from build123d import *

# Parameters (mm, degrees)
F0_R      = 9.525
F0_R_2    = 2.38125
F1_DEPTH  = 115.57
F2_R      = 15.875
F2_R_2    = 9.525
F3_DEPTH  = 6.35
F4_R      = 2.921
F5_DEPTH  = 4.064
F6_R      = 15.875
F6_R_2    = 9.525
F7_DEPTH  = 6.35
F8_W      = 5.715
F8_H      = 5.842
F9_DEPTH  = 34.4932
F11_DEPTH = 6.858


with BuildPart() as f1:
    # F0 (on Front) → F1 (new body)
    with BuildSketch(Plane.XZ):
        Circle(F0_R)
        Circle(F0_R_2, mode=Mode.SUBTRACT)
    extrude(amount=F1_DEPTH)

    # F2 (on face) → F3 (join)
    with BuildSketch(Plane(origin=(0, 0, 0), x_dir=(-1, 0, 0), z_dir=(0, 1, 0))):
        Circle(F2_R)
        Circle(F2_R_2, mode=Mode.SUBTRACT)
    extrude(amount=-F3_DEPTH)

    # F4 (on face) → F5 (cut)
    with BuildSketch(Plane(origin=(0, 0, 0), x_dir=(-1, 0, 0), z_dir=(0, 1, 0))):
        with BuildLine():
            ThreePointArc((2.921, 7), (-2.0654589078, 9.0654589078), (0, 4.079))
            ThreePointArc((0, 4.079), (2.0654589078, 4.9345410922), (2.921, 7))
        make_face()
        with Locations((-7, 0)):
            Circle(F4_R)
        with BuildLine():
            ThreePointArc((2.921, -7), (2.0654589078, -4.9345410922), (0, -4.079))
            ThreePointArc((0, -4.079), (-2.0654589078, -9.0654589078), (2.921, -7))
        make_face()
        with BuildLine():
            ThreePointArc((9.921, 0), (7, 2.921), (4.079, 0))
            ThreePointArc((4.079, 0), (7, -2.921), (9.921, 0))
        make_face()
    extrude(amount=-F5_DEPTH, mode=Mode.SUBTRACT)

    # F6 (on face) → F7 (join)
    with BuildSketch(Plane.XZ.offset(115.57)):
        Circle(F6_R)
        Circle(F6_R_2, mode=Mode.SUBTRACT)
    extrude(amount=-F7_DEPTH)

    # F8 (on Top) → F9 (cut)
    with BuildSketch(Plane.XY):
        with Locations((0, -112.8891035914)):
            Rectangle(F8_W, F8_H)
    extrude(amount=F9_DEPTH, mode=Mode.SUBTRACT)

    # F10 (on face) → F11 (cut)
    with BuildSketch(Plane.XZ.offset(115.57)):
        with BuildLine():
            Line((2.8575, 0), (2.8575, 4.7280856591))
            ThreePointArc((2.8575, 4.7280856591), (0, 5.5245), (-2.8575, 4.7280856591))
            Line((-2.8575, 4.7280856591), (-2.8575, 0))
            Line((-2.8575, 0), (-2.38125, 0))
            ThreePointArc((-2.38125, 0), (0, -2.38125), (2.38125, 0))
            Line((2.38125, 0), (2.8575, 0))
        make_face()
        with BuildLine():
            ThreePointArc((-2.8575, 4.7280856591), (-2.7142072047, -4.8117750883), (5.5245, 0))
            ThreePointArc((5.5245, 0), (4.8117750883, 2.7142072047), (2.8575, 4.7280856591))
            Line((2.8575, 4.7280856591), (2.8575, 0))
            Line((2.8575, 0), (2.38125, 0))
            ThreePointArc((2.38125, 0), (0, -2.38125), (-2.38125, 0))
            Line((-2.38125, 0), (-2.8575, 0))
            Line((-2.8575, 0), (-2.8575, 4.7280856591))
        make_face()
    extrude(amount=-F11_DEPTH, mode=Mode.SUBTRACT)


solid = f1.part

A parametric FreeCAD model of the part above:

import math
import FreeCAD as App
import Part
import Sketcher
Q = App.Units.Quantity

doc = App.newDocument("Part")
body = doc.addObject("PartDesign::Body", "Body")

# Sketch on XZ plane
sketch1 = doc.addObject("Sketcher::SketchObject", "Sketch")
body.addObject(sketch1)
sketch1.AttachmentSupport = (doc.XZ_Plane, [""])
sketch1.MapMode = "FlatFace"
sketch1.addGeometry([
    Part.Circle(App.Vector(0, 0, 0), App.Vector(0, 0, 1), 9.5),
    Part.Circle(App.Vector(0, 0, 0), App.Vector(0, 0, 1), 2.4),
], False)
sketch1.addConstraint([
    Sketcher.Constraint("Coincident", 0, 3, -1, 1),
    Sketcher.Constraint("Coincident", 1, 3, -1, 1),
    Sketcher.Constraint("Diameter", 0, Q("0.75 in")),
    Sketcher.Constraint("Diameter", 1, Q("0.1875 in")),
])
pad1 = doc.addObject("PartDesign::Pad", "Pad")
body.addObject(pad1)
pad1.Profile = sketch1
pad1.Length = Q("4.55 in")

# Sketch on XZ plane
sketch2 = doc.addObject("Sketcher::SketchObject", "Sketch001")
body.addObject(sketch2)
sketch2.AttachmentSupport = (doc.XZ_Plane, [""])
sketch2.MapMode = "FlatFace"
sketch2.addGeometry([
    Part.Circle(App.Vector(0, 0, 0), App.Vector(0, 0, 1), 16),
    Part.Circle(App.Vector(0, 0, 0), App.Vector(0, 0, 1), 10),
], False)
sketch2.addConstraint([
    Sketcher.Constraint("Coincident", 0, 3, -1, 1),
    Sketcher.Constraint("Coincident", 1, 3, -1, 1),
    Sketcher.Constraint("Diameter", 0, Q("1.25 in")),
    Sketcher.Constraint("Diameter", 1, Q("0.75 in")),
])
pad2 = doc.addObject("PartDesign::Pad", "Pad001")
body.addObject(pad2)
pad2.Profile = sketch2
pad2.Length = Q("0.25 in")

# Sketch on XZ plane
sketch3 = doc.addObject("Sketcher::SketchObject", "Sketch002")
body.addObject(sketch3)
sketch3.AttachmentSupport = (doc.XZ_Plane, [""])
sketch3.MapMode = "FlatFace"
sketch3.addGeometry([
    Part.ArcOfCircle(Part.Circle(App.Vector(0, 7, 0), App.Vector(0, 0, 1), 2.9), math.radians(-90), math.radians(180)),  # 0
    Part.ArcOfCircle(Part.Circle(App.Vector(0, 7, 0), App.Vector(0, 0, 1), 2.9), math.radians(180), math.radians(270)),  # 1
    Part.Circle(App.Vector(7, 0, 0), App.Vector(0, 0, 1), 2.9),  # 2
    Part.ArcOfCircle(Part.Circle(App.Vector(0, -7, 0), App.Vector(0, 0, 1), 2.9), math.radians(90), math.radians(180)),  # 3
    Part.ArcOfCircle(Part.Circle(App.Vector(0, -7, 0), App.Vector(0, 0, 1), 2.9), math.radians(180), math.radians(450)),  # 4
    Part.Circle(App.Vector(-7, 0, 0), App.Vector(0, 0, 1), 2.9),  # 5
], False)
sketch3.addConstraint([
    Sketcher.Constraint("Tangent", 0, 1, 1, 2),
    Sketcher.Constraint("Coincident", 1, 1, 0, 2),
    Sketcher.Constraint("Tangent", 3, 1, 4, 2),
    Sketcher.Constraint("Coincident", 4, 1, 3, 2),
    Sketcher.Constraint("Equal", 1, 2),
    Sketcher.Constraint("Equal", 2, 3),
    Sketcher.Constraint("Equal", 4, 5),
    Sketcher.Constraint("Symmetric", 0, 3, 3, 3, -1, 1),
    Sketcher.Constraint("Symmetric", 2, 3, 5, 3, -1, 1),
    Sketcher.Constraint("Symmetric", 1, 1, 4, 1, -1),
    Sketcher.Constraint("PointOnObject", 2, 3, -1),
    Sketcher.Constraint("PointOnObject", 0, 1, -2),
    Sketcher.Constraint("PointOnObject", 3, 1, -2),
    Sketcher.Constraint("Horizontal", 0, 3, 1, 1),
    Sketcher.Constraint("Diameter", 2, Q("0.23 in")),
    Sketcher.Constraint("DistanceY", -1, 1, 0, 3, 7.0),
    Sketcher.Constraint("DistanceX", -1, 1, 2, 3, 7.0),
])
pocket1 = doc.addObject("PartDesign::Pocket", "Pocket")
body.addObject(pocket1)
pocket1.Profile = sketch3
pocket1.Length = Q("0.16 in")
pocket1.Reversed = True

# Sketch on XZ plane
sketch4 = doc.addObject("Sketcher::SketchObject", "Sketch003")
body.addObject(sketch4)
sketch4.AttachmentSupport = (doc.XZ_Plane, [""])
sketch4.MapMode = "FlatFace"
sketch4.AttachmentOffset = App.Placement(App.Vector(0, 0, 4.55 * 25.4), App.Rotation())
sketch4.addGeometry([
    Part.Circle(App.Vector(0, 0, 0), App.Vector(0, 0, 1), 16),
    Part.Circle(App.Vector(0, 0, 0), App.Vector(0, 0, 1), 10),
], False)
sketch4.addConstraint([
    Sketcher.Constraint("Coincident", 0, 3, -1, 1),
    Sketcher.Constraint("Coincident", 1, 3, -1, 1),
    Sketcher.Constraint("Diameter", 0, Q("1.25 in")),
    Sketcher.Constraint("Diameter", 1, Q("0.75 in")),
])
pad3 = doc.addObject("PartDesign::Pad", "Pad002")
body.addObject(pad3)
pad3.Profile = sketch4
pad3.Length = Q("0.25 in")
pad3.Reversed = True

# Sketch on XY plane
sketch5 = doc.addObject("Sketcher::SketchObject", "Sketch004")
body.addObject(sketch5)
sketch5.AttachmentSupport = (doc.XY_Plane, [""])
sketch5.MapMode = "FlatFace"
sketch5.addGeometry([
    Part.LineSegment(App.Vector(-3, -110, 0), App.Vector(-3, -116, 0)),
    Part.LineSegment(App.Vector(-3, -116, 0), App.Vector(3, -116, 0)),
    Part.LineSegment(App.Vector(3, -116, 0), App.Vector(3, -110, 0)),
    Part.LineSegment(App.Vector(3, -110, 0), App.Vector(-3, -110, 0)),
], False)
sketch5.addConstraint([
    Sketcher.Constraint("Coincident", 0, 2, 1, 1),
    Sketcher.Constraint("Coincident", 1, 2, 2, 1),
    Sketcher.Constraint("Coincident", 2, 2, 3, 1),
    Sketcher.Constraint("Coincident", 3, 2, 0, 1),
    Sketcher.Constraint("Vertical", 0),
    Sketcher.Constraint("Horizontal", 1),
    Sketcher.Constraint("Vertical", 2),
    Sketcher.Constraint("Horizontal", 3),
    Sketcher.Constraint("DistanceY", 0, 2, 0, 1, Q("0.23 in")),
    Sketcher.Constraint("DistanceX", 1, 1, 1, 2, Q("0.225 in")),
    Sketcher.Constraint("DistanceX", 0, 2, -1, 1, Q("0.1125 in")),
    Sketcher.Constraint("DistanceY", 0, 2, -1, 1, 115.810104),
])
pocket2 = doc.addObject("PartDesign::Pocket", "Pocket001")
body.addObject(pocket2)
pocket2.Profile = sketch5
pocket2.Length = Q("1.358 in")
pocket2.Reversed = True

# Sketch on XZ plane
sketch6 = doc.addObject("Sketcher::SketchObject", "Sketch005")
body.addObject(sketch6)
sketch6.AttachmentSupport = (doc.XZ_Plane, [""])
sketch6.MapMode = "FlatFace"
sketch6.AttachmentOffset = App.Placement(App.Vector(0, 0, 4.55 * 25.4), App.Rotation())
sketch6.addGeometry([
    Part.ArcOfCircle(Part.Circle(App.Vector(0, 0, 0), App.Vector(0, 0, 1), 6), math.radians(59), math.radians(121)),
    Part.ArcOfCircle(Part.Circle(App.Vector(0, 0, 0), App.Vector(0, 0, 1), 6), math.radians(121), math.radians(360)),
    Part.ArcOfCircle(Part.Circle(App.Vector(0, 0, 0), App.Vector(0, 0, 1), 6), math.radians(0), math.radians(59)),
], False)
sketch6.addConstraint([
    Sketcher.Constraint("Tangent", 0, 2, 1, 1),
    Sketcher.Constraint("Tangent", 1, 2, 2, 1),
    Sketcher.Constraint("Tangent", 2, 2, 0, 1),
    Sketcher.Constraint("Coincident", 0, 3, -1, 1),
    Sketcher.Constraint("PointOnObject", 1, 2, -1),
    Sketcher.Constraint("Horizontal", 0, 2, 2, 2),
    Sketcher.Constraint("Radius", 0, Q("0.2175 in")),
    Sketcher.Constraint("DistanceX", 0, 2, 1, 2, Q("0.33 in")),
])
pocket3 = doc.addObject("PartDesign::Pocket", "Pocket002")
body.addObject(pocket3)
pocket3.Profile = sketch6
pocket3.Length = Q("0.27 in")

doc.recompute()
